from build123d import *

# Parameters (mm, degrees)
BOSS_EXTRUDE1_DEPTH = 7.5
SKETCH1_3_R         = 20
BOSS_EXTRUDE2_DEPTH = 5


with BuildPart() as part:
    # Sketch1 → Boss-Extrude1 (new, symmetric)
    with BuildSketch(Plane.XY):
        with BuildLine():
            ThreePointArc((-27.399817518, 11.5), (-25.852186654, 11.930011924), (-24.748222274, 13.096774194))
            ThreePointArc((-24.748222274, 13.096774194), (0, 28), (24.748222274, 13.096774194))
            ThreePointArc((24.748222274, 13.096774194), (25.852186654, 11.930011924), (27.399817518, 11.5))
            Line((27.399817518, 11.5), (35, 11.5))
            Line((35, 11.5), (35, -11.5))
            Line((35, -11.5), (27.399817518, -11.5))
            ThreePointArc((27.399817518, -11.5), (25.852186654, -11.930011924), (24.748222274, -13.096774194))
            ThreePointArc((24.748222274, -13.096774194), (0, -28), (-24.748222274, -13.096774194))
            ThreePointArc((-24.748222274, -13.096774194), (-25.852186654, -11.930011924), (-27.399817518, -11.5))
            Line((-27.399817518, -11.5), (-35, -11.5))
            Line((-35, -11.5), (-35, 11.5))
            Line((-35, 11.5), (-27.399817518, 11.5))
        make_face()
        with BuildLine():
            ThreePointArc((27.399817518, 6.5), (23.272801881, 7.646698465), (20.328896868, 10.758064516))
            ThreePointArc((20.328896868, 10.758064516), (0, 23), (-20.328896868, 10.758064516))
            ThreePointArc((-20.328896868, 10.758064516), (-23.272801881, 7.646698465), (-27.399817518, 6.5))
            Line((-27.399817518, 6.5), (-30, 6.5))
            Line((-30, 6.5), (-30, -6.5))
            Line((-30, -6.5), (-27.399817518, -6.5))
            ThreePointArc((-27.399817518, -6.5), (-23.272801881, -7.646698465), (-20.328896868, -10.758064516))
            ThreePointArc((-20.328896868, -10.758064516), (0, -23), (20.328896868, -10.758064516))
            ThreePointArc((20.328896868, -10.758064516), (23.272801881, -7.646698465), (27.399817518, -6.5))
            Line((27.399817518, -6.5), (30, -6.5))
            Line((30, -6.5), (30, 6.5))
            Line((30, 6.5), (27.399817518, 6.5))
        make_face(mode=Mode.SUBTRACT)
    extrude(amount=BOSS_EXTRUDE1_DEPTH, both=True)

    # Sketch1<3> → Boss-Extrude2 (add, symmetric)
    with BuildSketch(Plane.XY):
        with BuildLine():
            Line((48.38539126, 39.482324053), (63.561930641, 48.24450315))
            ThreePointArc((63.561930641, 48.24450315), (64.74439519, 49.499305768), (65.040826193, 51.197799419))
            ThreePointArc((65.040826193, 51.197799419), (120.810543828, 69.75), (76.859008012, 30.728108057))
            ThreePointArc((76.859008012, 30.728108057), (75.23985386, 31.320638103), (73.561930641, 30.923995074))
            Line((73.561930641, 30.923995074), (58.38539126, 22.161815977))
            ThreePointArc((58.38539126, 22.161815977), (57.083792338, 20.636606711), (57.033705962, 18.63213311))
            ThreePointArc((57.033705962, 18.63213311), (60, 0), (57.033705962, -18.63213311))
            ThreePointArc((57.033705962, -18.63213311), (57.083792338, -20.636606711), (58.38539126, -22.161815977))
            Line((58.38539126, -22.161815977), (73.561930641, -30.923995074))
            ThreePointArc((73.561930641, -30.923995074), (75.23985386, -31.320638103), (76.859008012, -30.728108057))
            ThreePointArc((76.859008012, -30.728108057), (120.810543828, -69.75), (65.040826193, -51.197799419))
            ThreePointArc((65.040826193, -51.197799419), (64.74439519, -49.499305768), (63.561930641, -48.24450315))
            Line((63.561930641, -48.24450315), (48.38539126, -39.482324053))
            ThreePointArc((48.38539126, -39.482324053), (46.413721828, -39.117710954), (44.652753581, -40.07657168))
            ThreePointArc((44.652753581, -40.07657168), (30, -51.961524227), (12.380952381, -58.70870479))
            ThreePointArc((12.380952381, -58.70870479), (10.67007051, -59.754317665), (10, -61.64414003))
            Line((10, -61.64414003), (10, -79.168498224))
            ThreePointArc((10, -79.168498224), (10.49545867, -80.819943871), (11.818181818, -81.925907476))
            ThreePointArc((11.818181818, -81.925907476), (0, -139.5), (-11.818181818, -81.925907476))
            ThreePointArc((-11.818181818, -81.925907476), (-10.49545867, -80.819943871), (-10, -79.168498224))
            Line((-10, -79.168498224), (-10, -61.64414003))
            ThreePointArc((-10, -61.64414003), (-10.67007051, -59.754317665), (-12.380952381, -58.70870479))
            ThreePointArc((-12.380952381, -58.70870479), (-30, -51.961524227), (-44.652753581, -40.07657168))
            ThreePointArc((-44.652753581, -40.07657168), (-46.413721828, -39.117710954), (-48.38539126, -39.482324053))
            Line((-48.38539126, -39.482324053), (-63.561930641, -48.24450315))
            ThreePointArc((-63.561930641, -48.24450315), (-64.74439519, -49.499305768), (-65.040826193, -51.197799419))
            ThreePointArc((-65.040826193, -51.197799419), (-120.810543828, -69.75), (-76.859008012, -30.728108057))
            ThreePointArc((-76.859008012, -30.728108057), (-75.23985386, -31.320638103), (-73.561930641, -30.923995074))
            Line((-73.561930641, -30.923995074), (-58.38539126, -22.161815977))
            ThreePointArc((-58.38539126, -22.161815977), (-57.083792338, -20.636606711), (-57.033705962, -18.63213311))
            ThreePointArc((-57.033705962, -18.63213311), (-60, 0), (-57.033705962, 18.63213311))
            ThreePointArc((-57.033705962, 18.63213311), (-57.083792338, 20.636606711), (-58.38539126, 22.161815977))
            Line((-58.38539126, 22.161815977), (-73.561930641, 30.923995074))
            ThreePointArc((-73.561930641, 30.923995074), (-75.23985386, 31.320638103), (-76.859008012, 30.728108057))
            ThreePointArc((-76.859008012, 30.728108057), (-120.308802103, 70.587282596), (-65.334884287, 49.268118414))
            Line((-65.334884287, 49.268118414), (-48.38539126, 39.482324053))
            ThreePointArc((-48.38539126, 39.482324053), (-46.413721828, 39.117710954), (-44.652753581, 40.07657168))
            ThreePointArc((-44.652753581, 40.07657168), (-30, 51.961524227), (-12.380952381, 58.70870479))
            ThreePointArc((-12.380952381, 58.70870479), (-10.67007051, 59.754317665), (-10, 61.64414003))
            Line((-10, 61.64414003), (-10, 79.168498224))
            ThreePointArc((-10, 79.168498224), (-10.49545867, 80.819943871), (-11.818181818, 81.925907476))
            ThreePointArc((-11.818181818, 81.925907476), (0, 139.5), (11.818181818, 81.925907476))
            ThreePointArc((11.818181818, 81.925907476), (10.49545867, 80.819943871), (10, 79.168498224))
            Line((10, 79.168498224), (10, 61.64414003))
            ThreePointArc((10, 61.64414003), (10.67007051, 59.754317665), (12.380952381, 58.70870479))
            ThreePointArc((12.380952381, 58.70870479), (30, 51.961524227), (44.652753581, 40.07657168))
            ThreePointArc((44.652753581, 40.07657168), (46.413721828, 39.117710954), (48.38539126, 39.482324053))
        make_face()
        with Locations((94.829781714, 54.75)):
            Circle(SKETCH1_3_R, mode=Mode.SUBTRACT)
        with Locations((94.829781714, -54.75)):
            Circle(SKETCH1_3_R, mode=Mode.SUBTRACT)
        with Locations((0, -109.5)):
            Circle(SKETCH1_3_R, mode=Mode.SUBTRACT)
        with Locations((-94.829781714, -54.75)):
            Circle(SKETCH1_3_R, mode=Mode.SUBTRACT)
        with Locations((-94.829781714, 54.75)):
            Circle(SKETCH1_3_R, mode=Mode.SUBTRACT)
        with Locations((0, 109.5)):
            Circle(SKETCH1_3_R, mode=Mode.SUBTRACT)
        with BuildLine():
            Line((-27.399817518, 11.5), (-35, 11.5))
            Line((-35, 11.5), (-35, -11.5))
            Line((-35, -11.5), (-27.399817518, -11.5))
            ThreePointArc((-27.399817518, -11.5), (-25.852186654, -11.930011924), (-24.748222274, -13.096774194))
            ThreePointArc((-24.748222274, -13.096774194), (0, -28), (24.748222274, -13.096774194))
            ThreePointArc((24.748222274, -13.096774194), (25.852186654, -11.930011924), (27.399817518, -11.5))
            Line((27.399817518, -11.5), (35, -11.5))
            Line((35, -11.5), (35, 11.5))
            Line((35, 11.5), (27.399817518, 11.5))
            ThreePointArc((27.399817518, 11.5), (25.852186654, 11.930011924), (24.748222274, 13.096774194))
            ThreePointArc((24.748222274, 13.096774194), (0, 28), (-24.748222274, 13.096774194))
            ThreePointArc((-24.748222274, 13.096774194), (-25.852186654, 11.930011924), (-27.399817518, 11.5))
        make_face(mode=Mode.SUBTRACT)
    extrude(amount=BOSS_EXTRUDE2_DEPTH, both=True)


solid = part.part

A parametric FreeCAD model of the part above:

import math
import FreeCAD as App
import Part
import Sketcher
Q = App.Units.Quantity

doc = App.newDocument("Part")
body = doc.addObject("PartDesign::Body", "Body")

sketch1 = body.newObject("Sketcher::SketchObject", "Sketch")
sketch1.AttachmentSupport = (doc.getObject("XY_Plane"), [""])
sketch1.MapMode = "FlatFace"
sketch1.addGeometry(Part.ArcOfCircle(Part.Circle(App.Vector(-27.4, 14.5, 0), App.Vector(0, 0, 1), 3), math.radians(-90), math.radians(-28)), False)
sketch1.addGeometry(Part.LineSegment(App.Vector(-27.4, 11.5, 0), App.Vector(-35, 11.5, 0)), False)
sketch1.addGeometry(Part.LineSegment(App.Vector(-35, 11.5, 0), App.Vector(-35, -11.5, 0)), False)
sketch1.addGeometry(Part.LineSegment(App.Vector(-35, -11.5, 0), App.Vector(-27.4, -11.5, 0)), False)
sketch1.addGeometry(Part.ArcOfCircle(Part.Circle(App.Vector(-27.4, -14.5, 0), App.Vector(0, 0, 1), 3), math.radians(28), math.radians(90)), False)
sketch1.addGeometry(Part.ArcOfCircle(Part.Circle(App.Vector(0, 0, 0), App.Vector(0, 0, 1), 28), math.radians(-152), math.radians(-28)), False)
sketch1.addGeometry(Part.ArcOfCircle(Part.Circle(App.Vector(27.4, -14.5, 0), App.Vector(0, 0, 1), 3), math.radians(90), math.radians(152)), False)
sketch1.addGeometry(Part.LineSegment(App.Vector(27.4, -11.5, 0), App.Vector(35, -11.5, 0)), False)
sketch1.addGeometry(Part.LineSegment(App.Vector(35, -11.5, 0), App.Vector(35, 11.5, 0)), False)
sketch1.addGeometry(Part.LineSegment(App.Vector(35, 11.5, 0), App.Vector(27.4, 11.5, 0)), False)
sketch1.addGeometry(Part.ArcOfCircle(Part.Circle(App.Vector(27.4, 14.5, 0), App.Vector(0, 0, 1), 3), math.radians(-152), math.radians(-90)), False)
sketch1.addGeometry(Part.ArcOfCircle(Part.Circle(App.Vector(0, 0, 0), App.Vector(0, 0, 1), 28), math.radians(28), math.radians(152)), False)
sketch1.addGeometry(Part.LineSegment(App.Vector(27.4, 6.5, 0), App.Vector(30, 6.5, 0)), False)
sketch1.addGeometry(Part.LineSegment(App.Vector(30, 6.5, 0), App.Vector(30, -6.5, 0)), False)
sketch1.addGeometry(Part.LineSegment(App.Vector(30, -6.5, 0), App.Vector(27.4, -6.5, 0)), False)
sketch1.addGeometry(Part.ArcOfCircle(Part.Circle(App.Vector(27.4, -14.5, 0), App.Vector(0, 0, 1), 8), math.radians(90), math.radians(152)), False)
sketch1.addGeometry(Part.ArcOfCircle(Part.Circle(App.Vector(0, 0, 0), App.Vector(0, 0, 1), 23), math.radians(-152), math.radians(-28)), False)
sketch1.addGeometry(Part.ArcOfCircle(Part.Circle(App.Vector(-27.4, -14.5, 0), App.Vector(0, 0, 1), 8), math.radians(28), math.radians(90)), False)
sketch1.addGeometry(Part.LineSegment(App.Vector(-27.4, -6.5, 0), App.Vector(-30, -6.5, 0)), False)
sketch1.addGeometry(Part.LineSegment(App.Vector(-30, -6.5, 0), App.Vector(-30, 6.5, 0)), False)
sketch1.addGeometry(Part.LineSegment(App.Vector(-30, 6.5, 0), App.Vector(-27.4, 6.5, 0)), False)
sketch1.addGeometry(Part.ArcOfCircle(Part.Circle(App.Vector(-27.4, 14.5, 0), App.Vector(0, 0, 1), 8), math.radians(-90), math.radians(-28)), False)
sketch1.addGeometry(Part.ArcOfCircle(Part.Circle(App.Vector(0, 0, 0), App.Vector(0, 0, 1), 23), math.radians(28), math.radians(152)), False)
sketch1.addGeometry(Part.ArcOfCircle(Part.Circle(App.Vector(27.4, 14.5, 0), App.Vector(0, 0, 1), 8), math.radians(-152), math.radians(-90)), False)
sketch1.addConstraint(Sketcher.Constraint("Tangent", 0, 1, 1, 1))
sketch1.addConstraint(Sketcher.Constraint("Coincident", 1, 2, 2, 1))
sketch1.addConstraint(Sketcher.Constraint("Coincident", 2, 2, 3, 1))
sketch1.addConstraint(Sketcher.Constraint("Tangent", 3, 2, 4, 2))
sketch1.addConstraint(Sketcher.Constraint("Tangent", 4, 1, 5, 1))
sketch1.addConstraint(Sketcher.Constraint("Tangent", 5, 2, 6, 2))
sketch1.addConstraint(Sketcher.Constraint("Tangent", 6, 1, 7, 1))
sketch1.addConstraint(Sketcher.Constraint("Coincident", 7, 2, 8, 1))
sketch1.addConstraint(Sketcher.Constraint("Coincident", 8, 2, 9, 1))
sketch1.addConstraint(Sketcher.Constraint("Tangent", 9, 2, 10, 2))
sketch1.addConstraint(Sketcher.Constraint("Tangent", 10, 1, 11, 1))
sketch1.addConstraint(Sketcher.Constraint("Tangent", 11, 2, 0, 2))
sketch1.addConstraint(Sketcher.Constraint("Coincident", 12, 2, 13, 1))
sketch1.addConstraint(Sketcher.Constraint("Coincident", 13, 2, 14, 1))
sketch1.addConstraint(Sketcher.Constraint("Tangent", 14, 2, 15, 1))
sketch1.addConstraint(Sketcher.Constraint("Tangent", 15, 2, 16, 2))
sketch1.addConstraint(Sketcher.Constraint("Tangent", 16, 1, 17, 1))
sketch1.addConstraint(Sketcher.Constraint("Tangent", 17, 2, 18, 1))
sketch1.addConstraint(Sketcher.Constraint("Coincident", 18, 2, 19, 1))
sketch1.addConstraint(Sketcher.Constraint("Coincident", 19, 2, 20, 1))
sketch1.addConstraint(Sketcher.Constraint("Tangent", 20, 2, 21, 1))
sketch1.addConstraint(Sketcher.Constraint("Tangent", 21, 2, 22, 2))
sketch1.addConstraint(Sketcher.Constraint("Tangent", 22, 1, 23, 1))
sketch1.addConstraint(Sketcher.Constraint("Tangent", 23, 2, 12, 1))
sketch1.addConstraint(Sketcher.Constraint("Horizontal", 1))
sketch1.addConstraint(Sketcher.Constraint("Vertical", 2))
sketch1.addConstraint(Sketcher.Constraint("Horizontal", 3))
sketch1.addConstraint(Sketcher.Constraint("Horizontal", 7))
sketch1.addConstraint(Sketcher.Constraint("Vertical", 8))
sketch1.addConstraint(Sketcher.Constraint("Horizontal", 9))
sketch1.addConstraint(Sketcher.Constraint("Horizontal", 12))
sketch1.addConstraint(Sketcher.Constraint("Vertical", 13))
sketch1.addConstraint(Sketcher.Constraint("Horizontal", 14))
sketch1.addConstraint(Sketcher.Constraint("Horizontal", 18))
sketch1.addConstraint(Sketcher.Constraint("Vertical", 19))
sketch1.addConstraint(Sketcher.Constraint("Horizontal", 20))
sketch1.addConstraint(Sketcher.Constraint("Coincident", 5, 3, -1, 1))
sketch1.addConstraint(Sketcher.Constraint("Coincident", 11, 3, -1, 1))
sketch1.addConstraint(Sketcher.Constraint("Coincident", 16, 3, -1, 1))
sketch1.addConstraint(Sketcher.Constraint("Coincident", 22, 3, -1, 1))
sketch1.addConstraint(Sketcher.Constraint("Coincident", 15, 3, 6, 3))
sketch1.addConstraint(Sketcher.Constraint("Coincident", 17, 3, 4, 3))
sketch1.addConstraint(Sketcher.Constraint("Coincident", 21, 3, 0, 3))
sketch1.addConstraint(Sketcher.Constraint("Coincident", 23, 3, 10, 3))
sketch1.addConstraint(Sketcher.Constraint("Equal", 0, 4))
sketch1.addConstraint(Sketcher.Constraint("Equal", 4, 6))
sketch1.addConstraint(Sketcher.Constraint("Equal", 6, 10))
sketch1.addConstraint(Sketcher.Constraint("Equal", 5, 11))
sketch1.addConstraint(Sketcher.Constraint("Equal", 17, 21))
sketch1.addConstraint(Sketcher.Constraint("Symmetric", 1, 2, 7, 2, -1, 1))
sketch1.addConstraint(Sketcher.Constraint("Symmetric", 12, 2, 18, 2, -1, 1))
sketch1.addConstraint(Sketcher.Constraint("Horizontal", 4, 3, 6, 3))
sketch1.addConstraint(Sketcher.Constraint("Radius", 0, Q("3 mm")))
sketch1.addConstraint(Sketcher.Constraint("Radius", 5, Q("28 mm")))
sketch1.addConstraint(Sketcher.Constraint("Radius", 15, Q("8 mm")))
sketch1.addConstraint(Sketcher.Constraint("DistanceY", 2, 2, 2, 1, Q("23 mm")))
sketch1.addConstraint(Sketcher.Constraint("DistanceX", 1, 2, -1, 1, Q("35 mm")))
sketch1.addConstraint(Sketcher.Constraint("DistanceX", -1, 1, 12, 2, Q("30 mm")))
pad1 = body.newObject("PartDesign::Pad", "Pad")
pad1.Profile = sketch1
pad1.Length = 15
pad1.Midplane = True

sketch2 = body.newObject("Sketcher::SketchObject", "Sketch001")
sketch2.AttachmentSupport = (doc.getObject("XY_Plane"), [""])
sketch2.MapMode = "FlatFace"
sketch2.addGeometry(Part.LineSegment(App.Vector(63.6, 48.2, 0), App.Vector(48.4, 39.5, 0)), False)
sketch2.addGeometry(Part.ArcOfCircle(Part.Circle(App.Vector(46.9, 42.1, 0), App.Vector(0, 0, 1), 3), math.radians(-138), math.radians(-60)), False)
sketch2.addGeometry(Part.ArcOfCircle(Part.Circle(App.Vector(0, 0, 0), App.Vector(0, 0, 1), 60), math.radians(42), math.radians(78)), False)
sketch2.addGeometry(Part.ArcOfCircle(Part.Circle(App.Vector(13, 61.6, 0), App.Vector(0, 0, 1), 3), math.radians(-180), math.radians(-102)), False)
sketch2.addGeometry(Part.LineSegment(App.Vector(10, 61.6, 0), App.Vector(10, 79.2, 0)), False)
sketch2.addGeometry(Part.ArcOfCircle(Part.Circle(App.Vector(13, 79.2, 0), App.Vector(0, 0, 1), 3), math.radians(113), math.radians(180)), False)
sketch2.addGeometry(Part.ArcOfCircle(Part.Circle(App.Vector(0, 109.5, 0), App.Vector(0, 0, 1), 30), math.radians(-67), math.radians(247)), False)
sketch2.addGeometry(Part.ArcOfCircle(Part.Circle(App.Vector(-13, 79.2, 0), App.Vector(0, 0, 1), 3), math.radians(0), math.radians(67)), False)
sketch2.addGeometry(Part.LineSegment(App.Vector(-10, 79.2, 0), App.Vector(-10, 61.6, 0)), False)
sketch2.addGeometry(Part.ArcOfCircle(Part.Circle(App.Vector(-13, 61.6, 0), App.Vector(0, 0, 1), 3), math.radians(-78), math.radians(0)), False)
sketch2.addGeometry(Part.ArcOfCircle(Part.Circle(App.Vector(0, 0, 0), App.Vector(0, 0, 1), 60), math.radians(102), math.radians(138)), False)
sketch2.addGeometry(Part.ArcOfCircle(Part.Circle(App.Vector(-46.9, 42.1, 0), App.Vector(0, 0, 1), 3), math.radians(-120), math.radians(-42)), False)
sketch2.addGeometry(Part.LineSegment(App.Vector(-48.4, 39.5, 0), App.Vector(-65.3, 49.3, 0)), False)
sketch2.addGeometry(Part.ArcOfCircle(Part.Circle(App.Vector(-94.8, 54.8, 0), App.Vector(0, 0, 1), 30), math.radians(-11), math.radians(307)), False)
sketch2.addGeometry(Part.ArcOfCircle(Part.Circle(App.Vector(-75.1, 28.3, 0), App.Vector(0, 0, 1), 3), math.radians(60), math.radians(127)), False)
sketch2.addGeometry(Part.LineSegment(App.Vector(-73.6, 30.9, 0), App.Vector(-58.4, 22.2, 0)), False)
sketch2.addGeometry(Part.ArcOfCircle(Part.Circle(App.Vector(-59.9, 19.6, 0), App.Vector(0, 0, 1), 3), math.radians(-18), math.radians(60)), False)
sketch2.addGeometry(Part.ArcOfCircle(Part.Circle(App.Vector(0, 0, 0), App.Vector(0, 0, 1), 60), math.radians(162), math.radians(198)), False)
sketch2.addGeometry(Part.ArcOfCircle(Part.Circle(App.Vector(-59.9, -19.6, 0), App.Vector(0, 0, 1), 3), math.radians(-60), math.radians(18)), False)
sketch2.addGeometry(Part.LineSegment(App.Vector(-58.4, -22.2, 0), App.Vector(-73.6, -30.9, 0)), False)
sketch2.addGeometry(Part.ArcOfCircle(Part.Circle(App.Vector(-75.1, -28.3, 0), App.Vector(0, 0, 1), 3), math.radians(-127), math.radians(-60)), False)
sketch2.addGeometry(Part.ArcOfCircle(Part.Circle(App.Vector(-94.8, -54.8, 0), App.Vector(0, 0, 1), 30), math.radians(53), math.radians(367)), False)
sketch2.addGeometry(Part.ArcOfCircle(Part.Circle(App.Vector(-62.1, -50.8, 0), App.Vector(0, 0, 1), 3), math.radians(120), math.radians(187)), False)
sketch2.addGeometry(Part.LineSegment(App.Vector(-63.6, -48.2, 0), App.Vector(-48.4, -39.5, 0)), False)
sketch2.addGeometry(Part.ArcOfCircle(Part.Circle(App.Vector(-46.9, -42.1, 0), App.Vector(0, 0, 1), 3), math.radians(42), math.radians(120)), False)
sketch2.addGeometry(Part.ArcOfCircle(Part.Circle(App.Vector(0, 0, 0), App.Vector(0, 0, 1), 60), math.radians(-138), math.radians(-102)), False)
sketch2.addGeometry(Part.ArcOfCircle(Part.Circle(App.Vector(-13, -61.6, 0), App.Vector(0, 0, 1), 3), math.radians(0), math.radians(78)), False)
sketch2.addGeometry(Part.LineSegment(App.Vector(-10, -61.6, 0), App.Vector(-10, -79.2, 0)), False)
sketch2.addGeometry(Part.ArcOfCircle(Part.Circle(App.Vector(-13, -79.2, 0), App.Vector(0, 0, 1), 3), math.radians(-67), math.radians(0)), False)
sketch2.addGeometry(Part.ArcOfCircle(Part.Circle(App.Vector(0, -109.5, 0), App.Vector(0, 0, 1), 30), math.radians(113), math.radians(427)), False)
sketch2.addGeometry(Part.ArcOfCircle(Part.Circle(App.Vector(13, -79.2, 0), App.Vector(0, 0, 1), 3), math.radians(180), math.radians(247)), False)
sketch2.addGeometry(Part.LineSegment(App.Vector(10, -79.2, 0), App.Vector(10, -61.6, 0)), False)
sketch2.addGeometry(Part.ArcOfCircle(Part.Circle(App.Vector(13, -61.6, 0), App.Vector(0, 0, 1), 3), math.radians(102), math.radians(180)), False)
sketch2.addGeometry(Part.ArcOfCircle(Part.Circle(App.Vector(0, 0, 0), App.Vector(0, 0, 1), 60), math.radians(-78), math.radians(-42)), False)
sketch2.addGeometry(Part.ArcOfCircle(Part.Circle(App.Vector(46.9, -42.1, 0), App.Vector(0, 0, 1), 3), math.radians(60), math.radians(138)), False)
sketch2.addGeometry(Part.LineSegment(App.Vector(48.4, -39.5, 0), App.Vector(63.6, -48.2, 0)), False)
sketch2.addGeometry(Part.ArcOfCircle(Part.Circle(App.Vector(62.1, -50.8, 0), App.Vector(0, 0, 1), 3), math.radians(-7), math.radians(60)), False)
sketch2.addGeometry(Part.ArcOfCircle(Part.Circle(App.Vector(94.8, -54.8, 0), App.Vector(0, 0, 1), 30), math.radians(173), math.radians(487)), False)
sketch2.addGeometry(Part.ArcOfCircle(Part.Circle(App.Vector(75.1, -28.3, 0), App.Vector(0, 0, 1), 3), math.radians(-120), math.radians(-53)), False)
sketch2.addGeometry(Part.LineSegment(App.Vector(73.6, -30.9, 0), App.Vector(58.4, -22.2, 0)), False)
sketch2.addGeometry(Part.ArcOfCircle(Part.Circle(App.Vector(59.9, -19.6, 0), App.Vector(0, 0, 1), 3), math.radians(162), math.radians(240)), False)
sketch2.addGeometry(Part.ArcOfCircle(Part.Circle(App.Vector(0, 0, 0), App.Vector(0, 0, 1), 60), math.radians(-18), math.radians(18)), False)
sketch2.addGeometry(Part.ArcOfCircle(Part.Circle(App.Vector(59.9, 19.6, 0), App.Vector(0, 0, 1), 3), math.radians(120), math.radians(198)), False)
sketch2.addGeometry(Part.LineSegment(App.Vector(58.4, 22.2, 0), App.Vector(73.6, 30.9, 0)), False)
sketch2.addGeometry(Part.ArcOfCircle(Part.Circle(App.Vector(75.1, 28.3, 0), App.Vector(0, 0, 1), 3), math.radians(53), math.radians(120)), False)
sketch2.addGeometry(Part.ArcOfCircle(Part.Circle(App.Vector(94.8, 54.8, 0), App.Vector(0, 0, 1), 30), math.radians(-127), math.radians(187)), False)
sketch2.addGeometry(Part.ArcOfCircle(Part.Circle(App.Vector(62.1, 50.8, 0), App.Vector(0, 0, 1), 3), math.radians(-60), math.radians(7)), False)
sketch2.addGeometry(Part.Circle(App.Vector(0, -109.5, 0), App.Vector(0, 0, 1), 20), False)
sketch2.addGeometry(Part.Circle(App.Vector(94.8, -54.8, 0), App.Vector(0, 0, 1), 20), False)
sketch2.addGeometry(Part.ArcOfCircle(Part.Circle(App.Vector(-27.4, 14.5, 0), App.Vector(0, 0, 1), 3), math.radians(-90), math.radians(-28)), False)
sketch2.addGeometry(Part.ArcOfCircle(Part.Circle(App.Vector(0, 0, 0), App.Vector(0, 0, 1), 28), math.radians(28), math.radians(152)), False)
sketch2.addGeometry(Part.ArcOfCircle(Part.Circle(App.Vector(27.4, 14.5, 0), App.Vector(0, 0, 1), 3), math.radians(-152), math.radians(-90)), False)
sketch2.addGeometry(Part.LineSegment(App.Vector(27.4, 11.5, 0), App.Vector(35, 11.5, 0)), False)
sketch2.addGeometry(Part.LineSegment(App.Vector(35, 11.5, 0), App.Vector(35, -11.5, 0)), False)
sketch2.addGeometry(Part.LineSegment(App.Vector(35, -11.5, 0), App.Vector(27.4, -11.5, 0)), False)
sketch2.addGeometry(Part.ArcOfCircle(Part.Circle(App.Vector(27.4, -14.5, 0), App.Vector(0, 0, 1), 3), math.radians(90), math.radians(152)), False)
sketch2.addGeometry(Part.ArcOfCircle(Part.Circle(App.Vector(0, 0, 0), App.Vector(0, 0, 1), 28), math.radians(-152), math.radians(-28)), False)
sketch2.addGeometry(Part.ArcOfCircle(Part.Circle(App.Vector(-27.4, -14.5, 0), App.Vector(0, 0, 1), 3), math.radians(28), math.radians(90)), False)
sketch2.addGeometry(Part.LineSegment(App.Vector(-27.4, -11.5, 0), App.Vector(-35, -11.5, 0)), False)
sketch2.addGeometry(Part.LineSegment(App.Vector(-35, -11.5, 0), App.Vector(-35, 11.5, 0)), False)
sketch2.addGeometry(Part.LineSegment(App.Vector(-35, 11.5, 0), App.Vector(-27.4, 11.5, 0)), False)
sketch2.addGeometry(Part.Circle(App.Vector(-94.8, -54.8, 0), App.Vector(0, 0, 1), 20), False)
sketch2.addGeometry(Part.Circle(App.Vector(94.8, 54.8, 0), App.Vector(0, 0, 1), 20), False)
sketch2.addGeometry(Part.Circle(App.Vector(0, 109.5, 0), App.Vector(0, 0, 1), 20), False)
sketch2.addGeometry(Part.Circle(App.Vector(-94.8, 54.8, 0), App.Vector(0, 0, 1), 20), False)
sketch2.addConstraint(Sketcher.Constraint("Tangent", 0, 2, 1, 2))
sketch2.addConstraint(Sketcher.Constraint("Tangent", 1, 1, 2, 1))
sketch2.addConstraint(Sketcher.Constraint("Tangent", 2, 2, 3, 2))
sketch2.addConstraint(Sketcher.Constraint("Tangent", 3, 1, 4, 1))
sketch2.addConstraint(Sketcher.Constraint("Tangent", 4, 2, 5, 2))
sketch2.addConstraint(Sketcher.Constraint("Tangent", 5, 1, 6, 1))
sketch2.addConstraint(Sketcher.Constraint("Tangent", 6, 2, 7, 2))
sketch2.addConstraint(Sketcher.Constraint("Tangent", 7, 1, 8, 1))
sketch2.addConstraint(Sketcher.Constraint("Tangent", 8, 2, 9, 2))
sketch2.addConstraint(Sketcher.Constraint("Tangent", 9, 1, 10, 1))
sketch2.addConstraint(Sketcher.Constraint("Tangent", 10, 2, 11, 2))
sketch2.addConstraint(Sketcher.Constraint("Tangent", 11, 1, 12, 1))
sketch2.addConstraint(Sketcher.Constraint("Coincident", 12, 2, 13, 1))
sketch2.addConstraint(Sketcher.Constraint("Tangent", 13, 2, 14, 2))
sketch2.addConstraint(Sketcher.Constraint("Tangent", 14, 1, 15, 1))
sketch2.addConstraint(Sketcher.Constraint("Tangent", 15, 2, 16, 2))
sketch2.addConstraint(Sketcher.Constraint("Tangent", 16, 1, 17, 1))
sketch2.addConstraint(Sketcher.Constraint("Tangent", 17, 2, 18, 2))
sketch2.addConstraint(Sketcher.Constraint("Tangent", 18, 1, 19, 1))
sketch2.addConstraint(Sketcher.Constraint("Tangent", 19, 2, 20, 2))
sketch2.addConstraint(Sketcher.Constraint("Tangent", 20, 1, 21, 1))
sketch2.addConstraint(Sketcher.Constraint("Tangent", 21, 2, 22, 2))
sketch2.addConstraint(Sketcher.Constraint("Tangent", 22, 1, 23, 1))
sketch2.addConstraint(Sketcher.Constraint("Tangent", 23, 2, 24, 2))
sketch2.addConstraint(Sketcher.Constraint("Tangent", 24, 1, 25, 1))
sketch2.addConstraint(Sketcher.Constraint("Tangent", 25, 2, 26, 2))
sketch2.addConstraint(Sketcher.Constraint("Tangent", 26, 1, 27, 1))
sketch2.addConstraint(Sketcher.Constraint("Tangent", 27, 2, 28, 2))
sketch2.addConstraint(Sketcher.Constraint("Tangent", 28, 1, 29, 1))
sketch2.addConstraint(Sketcher.Constraint("Tangent", 29, 2, 30, 2))
sketch2.addConstraint(Sketcher.Constraint("Tangent", 30, 1, 31, 1))
sketch2.addConstraint(Sketcher.Constraint("Tangent", 31, 2, 32, 2))
sketch2.addConstraint(Sketcher.Constraint("Tangent", 32, 1, 33, 1))
sketch2.addConstraint(Sketcher.Constraint("Tangent", 33, 2, 34, 2))
sketch2.addConstraint(Sketcher.Constraint("Tangent", 34, 1, 35, 1))
sketch2.addConstraint(Sketcher.Constraint("Tangent", 35, 2, 36, 2))
sketch2.addConstraint(Sketcher.Constraint("Tangent", 36, 1, 37, 1))
sketch2.addConstraint(Sketcher.Constraint("Tangent", 37, 2, 38, 2))
sketch2.addConstraint(Sketcher.Constraint("Tangent", 38, 1, 39, 1))
sketch2.addConstraint(Sketcher.Constraint("Tangent", 39, 2, 40, 2))
sketch2.addConstraint(Sketcher.Constraint("Tangent", 40, 1, 41, 1))
sketch2.addConstraint(Sketcher.Constraint("Tangent", 41, 2, 42, 2))
sketch2.addConstraint(Sketcher.Constraint("Tangent", 42, 1, 43, 1))
sketch2.addConstraint(Sketcher.Constraint("Tangent", 43, 2, 44, 2))
sketch2.addConstraint(Sketcher.Constraint("Tangent", 44, 1, 45, 1))
sketch2.addConstraint(Sketcher.Constraint("Tangent", 45, 2, 46, 2))
sketch2.addConstraint(Sketcher.Constraint("Tangent", 46, 1, 0, 1))
sketch2.addConstraint(Sketcher.Constraint("Tangent", 49, 2, 50, 2))
sketch2.addConstraint(Sketcher.Constraint("Tangent", 50, 1, 51, 1))
sketch2.addConstraint(Sketcher.Constraint("Tangent", 51, 2, 52, 1))
sketch2.addConstraint(Sketcher.Constraint("Coincident", 52, 2, 53, 1))
sketch2.addConstraint(Sketcher.Constraint("Coincident", 53, 2, 54, 1))
sketch2.addConstraint(Sketcher.Constraint("Tangent", 54, 2, 55, 1))
sketch2.addConstraint(Sketcher.Constraint("Tangent", 55, 2, 56, 2))
sketch2.addConstraint(Sketcher.Constraint("Tangent", 56, 1, 57, 1))
sketch2.addConstraint(Sketcher.Constraint("Tangent", 57, 2, 58, 1))
sketch2.addConstraint(Sketcher.Constraint("Coincident", 58, 2, 59, 1))
sketch2.addConstraint(Sketcher.Constraint("Coincident", 59, 2, 60, 1))
sketch2.addConstraint(Sketcher.Constraint("Tangent", 60, 2, 49, 1))
sketch2.addConstraint(Sketcher.Constraint("Vertical", 4))
sketch2.addConstraint(Sketcher.Constraint("Vertical", 8))
sketch2.addConstraint(Sketcher.Constraint("Vertical", 27))
sketch2.addConstraint(Sketcher.Constraint("Vertical", 31))
sketch2.addConstraint(Sketcher.Constraint("Horizontal", 52))
sketch2.addConstraint(Sketcher.Constraint("Vertical", 53))
sketch2.addConstraint(Sketcher.Constraint("Horizontal", 54))
sketch2.addConstraint(Sketcher.Constraint("Horizontal", 58))
sketch2.addConstraint(Sketcher.Constraint("Vertical", 59))
sketch2.addConstraint(Sketcher.Constraint("Horizontal", 60))
sketch2.addConstraint(Sketcher.Constraint("Coincident", 2, 3, -1, 1))
sketch2.addConstraint(Sketcher.Constraint("Coincident", 10, 3, -1, 1))
sketch2.addConstraint(Sketcher.Constraint("Coincident", 17, 3, -1, 1))
sketch2.addConstraint(Sketcher.Constraint("Coincident", 25, 3, -1, 1))
sketch2.addConstraint(Sketcher.Constraint("Coincident", 33, 3, -1, 1))
sketch2.addConstraint(Sketcher.Constraint("Coincident", 41, 3, -1, 1))
sketch2.addConstraint(Sketcher.Constraint("Coincident", 50, 3, -1, 1))
sketch2.addConstraint(Sketcher.Constraint("Coincident", 56, 3, -1, 1))
sketch2.addConstraint(Sketcher.Constraint("Coincident", 47, 3, 29, 3))
sketch2.addConstraint(Sketcher.Constraint("Coincident", 48, 3, 37, 3))
sketch2.addConstraint(Sketcher.Constraint("Coincident", 61, 3, 21, 3))
sketch2.addConstraint(Sketcher.Constraint("Coincident", 62, 3, 45, 3))
sketch2.addConstraint(Sketcher.Constraint("Coincident", 63, 3, 6, 3))
sketch2.addConstraint(Sketcher.Constraint("Coincident", 64, 3, 13, 3))
sketch2.addConstraint(Sketcher.Constraint("Equal", 1, 3))
sketch2.addConstraint(Sketcher.Constraint("Equal", 3, 5))
sketch2.addConstraint(Sketcher.Constraint("Equal", 5, 7))
sketch2.addConstraint(Sketcher.Constraint("Equal", 7, 9))
sketch2.addConstraint(Sketcher.Constraint("Equal", 2, 10))
sketch2.addConstraint(Sketcher.Constraint("Equal", 9, 11))
sketch2.addConstraint(Sketcher.Constraint("Equal", 6, 13))
sketch2.addConstraint(Sketcher.Constraint("Equal", 11, 14))
sketch2.addConstraint(Sketcher.Constraint("Equal", 14, 16))
sketch2.addConstraint(Sketcher.Constraint("Equal", 10, 17))
sketch2.addConstraint(Sketcher.Constraint("Equal", 16, 18))
sketch2.addConstraint(Sketcher.Constraint("Equal", 18, 20))
sketch2.addConstraint(Sketcher.Constraint("Equal", 13, 21))
sketch2.addConstraint(Sketcher.Constraint("Equal", 20, 22))
sketch2.addConstraint(Sketcher.Constraint("Equal", 22, 24))
sketch2.addConstraint(Sketcher.Constraint("Equal", 17, 25))
sketch2.addConstraint(Sketcher.Constraint("Equal", 24, 26))
sketch2.addConstraint(Sketcher.Constraint("Equal", 26, 28))
sketch2.addConstraint(Sketcher.Constraint("Equal", 21, 29))
sketch2.addConstraint(Sketcher.Constraint("Equal", 28, 30))
sketch2.addConstraint(Sketcher.Constraint("Equal", 30, 32))
sketch2.addConstraint(Sketcher.Constraint("Equal", 25, 33))
sketch2.addConstraint(Sketcher.Constraint("Equal", 32, 34))
sketch2.addConstraint(Sketcher.Constraint("Equal", 34, 36))
sketch2.addConstraint(Sketcher.Constraint("Equal", 29, 37))
sketch2.addConstraint(Sketcher.Constraint("Equal", 36, 38))
sketch2.addConstraint(Sketcher.Constraint("Equal", 38, 40))
sketch2.addConstraint(Sketcher.Constraint("Equal", 33, 41))
sketch2.addConstraint(Sketcher.Constraint("Equal", 40, 42))
sketch2.addConstraint(Sketcher.Constraint("Equal", 42, 44))
sketch2.addConstraint(Sketcher.Constraint("Equal", 37, 45))
sketch2.addConstraint(Sketcher.Constraint("Equal", 44, 46))
sketch2.addConstraint(Sketcher.Constraint("Equal", 47, 48))
sketch2.addConstraint(Sketcher.Constraint("Equal", 46, 49))
sketch2.addConstraint(Sketcher.Constraint("Equal", 49, 51))
sketch2.addConstraint(Sketcher.Constraint("Equal", 51, 55))
sketch2.addConstraint(Sketcher.Constraint("Equal", 50, 56))
sketch2.addConstraint(Sketcher.Constraint("Equal", 55, 57))
sketch2.addConstraint(Sketcher.Constraint("Equal", 48, 61))
sketch2.addConstraint(Sketcher.Constraint("Equal", 61, 62))
sketch2.addConstraint(Sketcher.Constraint("Equal", 62, 63))
sketch2.addConstraint(Sketcher.Constraint("Equal", 63, 64))
sketch2.addConstraint(Sketcher.Constraint("Symmetric", 5, 3, 28, 3, -1, 1))
sketch2.addConstraint(Sketcher.Constraint("Symmetric", 7, 3, 30, 3, -1, 1))
sketch2.addConstraint(Sketcher.Constraint("Symmetric", 13, 3, 37, 3, -1, 1))
sketch2.addConstraint(Sketcher.Constraint("Symmetric", 20, 3, 44, 3, -1, 1))
sketch2.addConstraint(Sketcher.Constraint("Symmetric", 22, 3, 46, 3, -1, 1))
sketch2.addConstraint(Sketcher.Constraint("Symmetric", 11, 1, 34, 1, -1, 1))
sketch2.addConstraint(Sketcher.Constraint("Symmetric", 14, 1, 38, 1, -1, 1))
sketch2.addConstraint(Sketcher.Constraint("Symmetric", 52, 2, 58, 2, -1, 1))
sketch2.addConstraint(Sketcher.Constraint("Symmetric", 5, 3, 7, 3, -2))
sketch2.addConstraint(Sketcher.Constraint("Symmetric", 22, 3, 36, 3, -2))
sketch2.addConstraint(Sketcher.Constraint("Symmetric", 20, 3, 38, 3, -2))
sketch2.addConstraint(Sketcher.Constraint("Parallel", 12, 15))
sketch2.addConstraint(Sketcher.Constraint("Parallel", 0, 19))
sketch2.addConstraint(Sketcher.Constraint("Parallel", 19, 23))
sketch2.addConstraint(Sketcher.Constraint("Parallel", 23, 43))
sketch2.addConstraint(Sketcher.Constraint("Horizontal", 1, 3, 11, 3))
sketch2.addConstraint(Sketcher.Constraint("Horizontal", 49, 3, 51, 3))
sketch2.addConstraint(Sketcher.Constraint("Horizontal", 55, 3, 57, 3))
sketch2.addConstraint(Sketcher.Constraint("Equal", 0, 15))
sketch2.addConstraint(Sketcher.Constraint("Diameter", 47, Q("40 mm")))
sketch2.addConstraint(Sketcher.Constraint("Radius", 1, Q("3 mm")))
sketch2.addConstraint(Sketcher.Constraint("Radius", 2, Q("60 mm")))
sketch2.addConstraint(Sketcher.Constraint("Radius", 6, Q("30 mm")))
sketch2.addConstraint(Sketcher.Constraint("Radius", 50, Q("28 mm")))
sketch2.addConstraint(Sketcher.Constraint("DistanceY", 53, 2, 53, 1, Q("23 mm")))
sketch2.addConstraint(Sketcher.Constraint("Angle", 0, Q("-150 deg")))
sketch2.addConstraint(Sketcher.Constraint("DistanceX", -1, 1, 3, 3, Q("13 mm")))
sketch2.addConstraint(Sketcher.Constraint("DistanceX", -1, 1, 52, 2, Q("35 mm")))
sketch2.addConstraint(Sketcher.Constraint("DistanceY", -1, 1, 6, 3, Q("109.5 mm")))
sketch2.addConstraint(Sketcher.Constraint("DistanceY", -1, 1, 13, 3, Q("54.75 mm")))
sketch2.addConstraint(Sketcher.Constraint("DistanceY", -1, 1, 1, 3, Q("42.0804 mm")))
sketch2.addConstraint(Sketcher.Constraint("DistanceY", 21, 2, -1, 1, Q("51.197799 mm")))
pad2 = body.newObject("PartDesign::Pad", "Pad001")
pad2.Profile = sketch2
pad2.Length = 10
pad2.Midplane = True

doc.recompute()
